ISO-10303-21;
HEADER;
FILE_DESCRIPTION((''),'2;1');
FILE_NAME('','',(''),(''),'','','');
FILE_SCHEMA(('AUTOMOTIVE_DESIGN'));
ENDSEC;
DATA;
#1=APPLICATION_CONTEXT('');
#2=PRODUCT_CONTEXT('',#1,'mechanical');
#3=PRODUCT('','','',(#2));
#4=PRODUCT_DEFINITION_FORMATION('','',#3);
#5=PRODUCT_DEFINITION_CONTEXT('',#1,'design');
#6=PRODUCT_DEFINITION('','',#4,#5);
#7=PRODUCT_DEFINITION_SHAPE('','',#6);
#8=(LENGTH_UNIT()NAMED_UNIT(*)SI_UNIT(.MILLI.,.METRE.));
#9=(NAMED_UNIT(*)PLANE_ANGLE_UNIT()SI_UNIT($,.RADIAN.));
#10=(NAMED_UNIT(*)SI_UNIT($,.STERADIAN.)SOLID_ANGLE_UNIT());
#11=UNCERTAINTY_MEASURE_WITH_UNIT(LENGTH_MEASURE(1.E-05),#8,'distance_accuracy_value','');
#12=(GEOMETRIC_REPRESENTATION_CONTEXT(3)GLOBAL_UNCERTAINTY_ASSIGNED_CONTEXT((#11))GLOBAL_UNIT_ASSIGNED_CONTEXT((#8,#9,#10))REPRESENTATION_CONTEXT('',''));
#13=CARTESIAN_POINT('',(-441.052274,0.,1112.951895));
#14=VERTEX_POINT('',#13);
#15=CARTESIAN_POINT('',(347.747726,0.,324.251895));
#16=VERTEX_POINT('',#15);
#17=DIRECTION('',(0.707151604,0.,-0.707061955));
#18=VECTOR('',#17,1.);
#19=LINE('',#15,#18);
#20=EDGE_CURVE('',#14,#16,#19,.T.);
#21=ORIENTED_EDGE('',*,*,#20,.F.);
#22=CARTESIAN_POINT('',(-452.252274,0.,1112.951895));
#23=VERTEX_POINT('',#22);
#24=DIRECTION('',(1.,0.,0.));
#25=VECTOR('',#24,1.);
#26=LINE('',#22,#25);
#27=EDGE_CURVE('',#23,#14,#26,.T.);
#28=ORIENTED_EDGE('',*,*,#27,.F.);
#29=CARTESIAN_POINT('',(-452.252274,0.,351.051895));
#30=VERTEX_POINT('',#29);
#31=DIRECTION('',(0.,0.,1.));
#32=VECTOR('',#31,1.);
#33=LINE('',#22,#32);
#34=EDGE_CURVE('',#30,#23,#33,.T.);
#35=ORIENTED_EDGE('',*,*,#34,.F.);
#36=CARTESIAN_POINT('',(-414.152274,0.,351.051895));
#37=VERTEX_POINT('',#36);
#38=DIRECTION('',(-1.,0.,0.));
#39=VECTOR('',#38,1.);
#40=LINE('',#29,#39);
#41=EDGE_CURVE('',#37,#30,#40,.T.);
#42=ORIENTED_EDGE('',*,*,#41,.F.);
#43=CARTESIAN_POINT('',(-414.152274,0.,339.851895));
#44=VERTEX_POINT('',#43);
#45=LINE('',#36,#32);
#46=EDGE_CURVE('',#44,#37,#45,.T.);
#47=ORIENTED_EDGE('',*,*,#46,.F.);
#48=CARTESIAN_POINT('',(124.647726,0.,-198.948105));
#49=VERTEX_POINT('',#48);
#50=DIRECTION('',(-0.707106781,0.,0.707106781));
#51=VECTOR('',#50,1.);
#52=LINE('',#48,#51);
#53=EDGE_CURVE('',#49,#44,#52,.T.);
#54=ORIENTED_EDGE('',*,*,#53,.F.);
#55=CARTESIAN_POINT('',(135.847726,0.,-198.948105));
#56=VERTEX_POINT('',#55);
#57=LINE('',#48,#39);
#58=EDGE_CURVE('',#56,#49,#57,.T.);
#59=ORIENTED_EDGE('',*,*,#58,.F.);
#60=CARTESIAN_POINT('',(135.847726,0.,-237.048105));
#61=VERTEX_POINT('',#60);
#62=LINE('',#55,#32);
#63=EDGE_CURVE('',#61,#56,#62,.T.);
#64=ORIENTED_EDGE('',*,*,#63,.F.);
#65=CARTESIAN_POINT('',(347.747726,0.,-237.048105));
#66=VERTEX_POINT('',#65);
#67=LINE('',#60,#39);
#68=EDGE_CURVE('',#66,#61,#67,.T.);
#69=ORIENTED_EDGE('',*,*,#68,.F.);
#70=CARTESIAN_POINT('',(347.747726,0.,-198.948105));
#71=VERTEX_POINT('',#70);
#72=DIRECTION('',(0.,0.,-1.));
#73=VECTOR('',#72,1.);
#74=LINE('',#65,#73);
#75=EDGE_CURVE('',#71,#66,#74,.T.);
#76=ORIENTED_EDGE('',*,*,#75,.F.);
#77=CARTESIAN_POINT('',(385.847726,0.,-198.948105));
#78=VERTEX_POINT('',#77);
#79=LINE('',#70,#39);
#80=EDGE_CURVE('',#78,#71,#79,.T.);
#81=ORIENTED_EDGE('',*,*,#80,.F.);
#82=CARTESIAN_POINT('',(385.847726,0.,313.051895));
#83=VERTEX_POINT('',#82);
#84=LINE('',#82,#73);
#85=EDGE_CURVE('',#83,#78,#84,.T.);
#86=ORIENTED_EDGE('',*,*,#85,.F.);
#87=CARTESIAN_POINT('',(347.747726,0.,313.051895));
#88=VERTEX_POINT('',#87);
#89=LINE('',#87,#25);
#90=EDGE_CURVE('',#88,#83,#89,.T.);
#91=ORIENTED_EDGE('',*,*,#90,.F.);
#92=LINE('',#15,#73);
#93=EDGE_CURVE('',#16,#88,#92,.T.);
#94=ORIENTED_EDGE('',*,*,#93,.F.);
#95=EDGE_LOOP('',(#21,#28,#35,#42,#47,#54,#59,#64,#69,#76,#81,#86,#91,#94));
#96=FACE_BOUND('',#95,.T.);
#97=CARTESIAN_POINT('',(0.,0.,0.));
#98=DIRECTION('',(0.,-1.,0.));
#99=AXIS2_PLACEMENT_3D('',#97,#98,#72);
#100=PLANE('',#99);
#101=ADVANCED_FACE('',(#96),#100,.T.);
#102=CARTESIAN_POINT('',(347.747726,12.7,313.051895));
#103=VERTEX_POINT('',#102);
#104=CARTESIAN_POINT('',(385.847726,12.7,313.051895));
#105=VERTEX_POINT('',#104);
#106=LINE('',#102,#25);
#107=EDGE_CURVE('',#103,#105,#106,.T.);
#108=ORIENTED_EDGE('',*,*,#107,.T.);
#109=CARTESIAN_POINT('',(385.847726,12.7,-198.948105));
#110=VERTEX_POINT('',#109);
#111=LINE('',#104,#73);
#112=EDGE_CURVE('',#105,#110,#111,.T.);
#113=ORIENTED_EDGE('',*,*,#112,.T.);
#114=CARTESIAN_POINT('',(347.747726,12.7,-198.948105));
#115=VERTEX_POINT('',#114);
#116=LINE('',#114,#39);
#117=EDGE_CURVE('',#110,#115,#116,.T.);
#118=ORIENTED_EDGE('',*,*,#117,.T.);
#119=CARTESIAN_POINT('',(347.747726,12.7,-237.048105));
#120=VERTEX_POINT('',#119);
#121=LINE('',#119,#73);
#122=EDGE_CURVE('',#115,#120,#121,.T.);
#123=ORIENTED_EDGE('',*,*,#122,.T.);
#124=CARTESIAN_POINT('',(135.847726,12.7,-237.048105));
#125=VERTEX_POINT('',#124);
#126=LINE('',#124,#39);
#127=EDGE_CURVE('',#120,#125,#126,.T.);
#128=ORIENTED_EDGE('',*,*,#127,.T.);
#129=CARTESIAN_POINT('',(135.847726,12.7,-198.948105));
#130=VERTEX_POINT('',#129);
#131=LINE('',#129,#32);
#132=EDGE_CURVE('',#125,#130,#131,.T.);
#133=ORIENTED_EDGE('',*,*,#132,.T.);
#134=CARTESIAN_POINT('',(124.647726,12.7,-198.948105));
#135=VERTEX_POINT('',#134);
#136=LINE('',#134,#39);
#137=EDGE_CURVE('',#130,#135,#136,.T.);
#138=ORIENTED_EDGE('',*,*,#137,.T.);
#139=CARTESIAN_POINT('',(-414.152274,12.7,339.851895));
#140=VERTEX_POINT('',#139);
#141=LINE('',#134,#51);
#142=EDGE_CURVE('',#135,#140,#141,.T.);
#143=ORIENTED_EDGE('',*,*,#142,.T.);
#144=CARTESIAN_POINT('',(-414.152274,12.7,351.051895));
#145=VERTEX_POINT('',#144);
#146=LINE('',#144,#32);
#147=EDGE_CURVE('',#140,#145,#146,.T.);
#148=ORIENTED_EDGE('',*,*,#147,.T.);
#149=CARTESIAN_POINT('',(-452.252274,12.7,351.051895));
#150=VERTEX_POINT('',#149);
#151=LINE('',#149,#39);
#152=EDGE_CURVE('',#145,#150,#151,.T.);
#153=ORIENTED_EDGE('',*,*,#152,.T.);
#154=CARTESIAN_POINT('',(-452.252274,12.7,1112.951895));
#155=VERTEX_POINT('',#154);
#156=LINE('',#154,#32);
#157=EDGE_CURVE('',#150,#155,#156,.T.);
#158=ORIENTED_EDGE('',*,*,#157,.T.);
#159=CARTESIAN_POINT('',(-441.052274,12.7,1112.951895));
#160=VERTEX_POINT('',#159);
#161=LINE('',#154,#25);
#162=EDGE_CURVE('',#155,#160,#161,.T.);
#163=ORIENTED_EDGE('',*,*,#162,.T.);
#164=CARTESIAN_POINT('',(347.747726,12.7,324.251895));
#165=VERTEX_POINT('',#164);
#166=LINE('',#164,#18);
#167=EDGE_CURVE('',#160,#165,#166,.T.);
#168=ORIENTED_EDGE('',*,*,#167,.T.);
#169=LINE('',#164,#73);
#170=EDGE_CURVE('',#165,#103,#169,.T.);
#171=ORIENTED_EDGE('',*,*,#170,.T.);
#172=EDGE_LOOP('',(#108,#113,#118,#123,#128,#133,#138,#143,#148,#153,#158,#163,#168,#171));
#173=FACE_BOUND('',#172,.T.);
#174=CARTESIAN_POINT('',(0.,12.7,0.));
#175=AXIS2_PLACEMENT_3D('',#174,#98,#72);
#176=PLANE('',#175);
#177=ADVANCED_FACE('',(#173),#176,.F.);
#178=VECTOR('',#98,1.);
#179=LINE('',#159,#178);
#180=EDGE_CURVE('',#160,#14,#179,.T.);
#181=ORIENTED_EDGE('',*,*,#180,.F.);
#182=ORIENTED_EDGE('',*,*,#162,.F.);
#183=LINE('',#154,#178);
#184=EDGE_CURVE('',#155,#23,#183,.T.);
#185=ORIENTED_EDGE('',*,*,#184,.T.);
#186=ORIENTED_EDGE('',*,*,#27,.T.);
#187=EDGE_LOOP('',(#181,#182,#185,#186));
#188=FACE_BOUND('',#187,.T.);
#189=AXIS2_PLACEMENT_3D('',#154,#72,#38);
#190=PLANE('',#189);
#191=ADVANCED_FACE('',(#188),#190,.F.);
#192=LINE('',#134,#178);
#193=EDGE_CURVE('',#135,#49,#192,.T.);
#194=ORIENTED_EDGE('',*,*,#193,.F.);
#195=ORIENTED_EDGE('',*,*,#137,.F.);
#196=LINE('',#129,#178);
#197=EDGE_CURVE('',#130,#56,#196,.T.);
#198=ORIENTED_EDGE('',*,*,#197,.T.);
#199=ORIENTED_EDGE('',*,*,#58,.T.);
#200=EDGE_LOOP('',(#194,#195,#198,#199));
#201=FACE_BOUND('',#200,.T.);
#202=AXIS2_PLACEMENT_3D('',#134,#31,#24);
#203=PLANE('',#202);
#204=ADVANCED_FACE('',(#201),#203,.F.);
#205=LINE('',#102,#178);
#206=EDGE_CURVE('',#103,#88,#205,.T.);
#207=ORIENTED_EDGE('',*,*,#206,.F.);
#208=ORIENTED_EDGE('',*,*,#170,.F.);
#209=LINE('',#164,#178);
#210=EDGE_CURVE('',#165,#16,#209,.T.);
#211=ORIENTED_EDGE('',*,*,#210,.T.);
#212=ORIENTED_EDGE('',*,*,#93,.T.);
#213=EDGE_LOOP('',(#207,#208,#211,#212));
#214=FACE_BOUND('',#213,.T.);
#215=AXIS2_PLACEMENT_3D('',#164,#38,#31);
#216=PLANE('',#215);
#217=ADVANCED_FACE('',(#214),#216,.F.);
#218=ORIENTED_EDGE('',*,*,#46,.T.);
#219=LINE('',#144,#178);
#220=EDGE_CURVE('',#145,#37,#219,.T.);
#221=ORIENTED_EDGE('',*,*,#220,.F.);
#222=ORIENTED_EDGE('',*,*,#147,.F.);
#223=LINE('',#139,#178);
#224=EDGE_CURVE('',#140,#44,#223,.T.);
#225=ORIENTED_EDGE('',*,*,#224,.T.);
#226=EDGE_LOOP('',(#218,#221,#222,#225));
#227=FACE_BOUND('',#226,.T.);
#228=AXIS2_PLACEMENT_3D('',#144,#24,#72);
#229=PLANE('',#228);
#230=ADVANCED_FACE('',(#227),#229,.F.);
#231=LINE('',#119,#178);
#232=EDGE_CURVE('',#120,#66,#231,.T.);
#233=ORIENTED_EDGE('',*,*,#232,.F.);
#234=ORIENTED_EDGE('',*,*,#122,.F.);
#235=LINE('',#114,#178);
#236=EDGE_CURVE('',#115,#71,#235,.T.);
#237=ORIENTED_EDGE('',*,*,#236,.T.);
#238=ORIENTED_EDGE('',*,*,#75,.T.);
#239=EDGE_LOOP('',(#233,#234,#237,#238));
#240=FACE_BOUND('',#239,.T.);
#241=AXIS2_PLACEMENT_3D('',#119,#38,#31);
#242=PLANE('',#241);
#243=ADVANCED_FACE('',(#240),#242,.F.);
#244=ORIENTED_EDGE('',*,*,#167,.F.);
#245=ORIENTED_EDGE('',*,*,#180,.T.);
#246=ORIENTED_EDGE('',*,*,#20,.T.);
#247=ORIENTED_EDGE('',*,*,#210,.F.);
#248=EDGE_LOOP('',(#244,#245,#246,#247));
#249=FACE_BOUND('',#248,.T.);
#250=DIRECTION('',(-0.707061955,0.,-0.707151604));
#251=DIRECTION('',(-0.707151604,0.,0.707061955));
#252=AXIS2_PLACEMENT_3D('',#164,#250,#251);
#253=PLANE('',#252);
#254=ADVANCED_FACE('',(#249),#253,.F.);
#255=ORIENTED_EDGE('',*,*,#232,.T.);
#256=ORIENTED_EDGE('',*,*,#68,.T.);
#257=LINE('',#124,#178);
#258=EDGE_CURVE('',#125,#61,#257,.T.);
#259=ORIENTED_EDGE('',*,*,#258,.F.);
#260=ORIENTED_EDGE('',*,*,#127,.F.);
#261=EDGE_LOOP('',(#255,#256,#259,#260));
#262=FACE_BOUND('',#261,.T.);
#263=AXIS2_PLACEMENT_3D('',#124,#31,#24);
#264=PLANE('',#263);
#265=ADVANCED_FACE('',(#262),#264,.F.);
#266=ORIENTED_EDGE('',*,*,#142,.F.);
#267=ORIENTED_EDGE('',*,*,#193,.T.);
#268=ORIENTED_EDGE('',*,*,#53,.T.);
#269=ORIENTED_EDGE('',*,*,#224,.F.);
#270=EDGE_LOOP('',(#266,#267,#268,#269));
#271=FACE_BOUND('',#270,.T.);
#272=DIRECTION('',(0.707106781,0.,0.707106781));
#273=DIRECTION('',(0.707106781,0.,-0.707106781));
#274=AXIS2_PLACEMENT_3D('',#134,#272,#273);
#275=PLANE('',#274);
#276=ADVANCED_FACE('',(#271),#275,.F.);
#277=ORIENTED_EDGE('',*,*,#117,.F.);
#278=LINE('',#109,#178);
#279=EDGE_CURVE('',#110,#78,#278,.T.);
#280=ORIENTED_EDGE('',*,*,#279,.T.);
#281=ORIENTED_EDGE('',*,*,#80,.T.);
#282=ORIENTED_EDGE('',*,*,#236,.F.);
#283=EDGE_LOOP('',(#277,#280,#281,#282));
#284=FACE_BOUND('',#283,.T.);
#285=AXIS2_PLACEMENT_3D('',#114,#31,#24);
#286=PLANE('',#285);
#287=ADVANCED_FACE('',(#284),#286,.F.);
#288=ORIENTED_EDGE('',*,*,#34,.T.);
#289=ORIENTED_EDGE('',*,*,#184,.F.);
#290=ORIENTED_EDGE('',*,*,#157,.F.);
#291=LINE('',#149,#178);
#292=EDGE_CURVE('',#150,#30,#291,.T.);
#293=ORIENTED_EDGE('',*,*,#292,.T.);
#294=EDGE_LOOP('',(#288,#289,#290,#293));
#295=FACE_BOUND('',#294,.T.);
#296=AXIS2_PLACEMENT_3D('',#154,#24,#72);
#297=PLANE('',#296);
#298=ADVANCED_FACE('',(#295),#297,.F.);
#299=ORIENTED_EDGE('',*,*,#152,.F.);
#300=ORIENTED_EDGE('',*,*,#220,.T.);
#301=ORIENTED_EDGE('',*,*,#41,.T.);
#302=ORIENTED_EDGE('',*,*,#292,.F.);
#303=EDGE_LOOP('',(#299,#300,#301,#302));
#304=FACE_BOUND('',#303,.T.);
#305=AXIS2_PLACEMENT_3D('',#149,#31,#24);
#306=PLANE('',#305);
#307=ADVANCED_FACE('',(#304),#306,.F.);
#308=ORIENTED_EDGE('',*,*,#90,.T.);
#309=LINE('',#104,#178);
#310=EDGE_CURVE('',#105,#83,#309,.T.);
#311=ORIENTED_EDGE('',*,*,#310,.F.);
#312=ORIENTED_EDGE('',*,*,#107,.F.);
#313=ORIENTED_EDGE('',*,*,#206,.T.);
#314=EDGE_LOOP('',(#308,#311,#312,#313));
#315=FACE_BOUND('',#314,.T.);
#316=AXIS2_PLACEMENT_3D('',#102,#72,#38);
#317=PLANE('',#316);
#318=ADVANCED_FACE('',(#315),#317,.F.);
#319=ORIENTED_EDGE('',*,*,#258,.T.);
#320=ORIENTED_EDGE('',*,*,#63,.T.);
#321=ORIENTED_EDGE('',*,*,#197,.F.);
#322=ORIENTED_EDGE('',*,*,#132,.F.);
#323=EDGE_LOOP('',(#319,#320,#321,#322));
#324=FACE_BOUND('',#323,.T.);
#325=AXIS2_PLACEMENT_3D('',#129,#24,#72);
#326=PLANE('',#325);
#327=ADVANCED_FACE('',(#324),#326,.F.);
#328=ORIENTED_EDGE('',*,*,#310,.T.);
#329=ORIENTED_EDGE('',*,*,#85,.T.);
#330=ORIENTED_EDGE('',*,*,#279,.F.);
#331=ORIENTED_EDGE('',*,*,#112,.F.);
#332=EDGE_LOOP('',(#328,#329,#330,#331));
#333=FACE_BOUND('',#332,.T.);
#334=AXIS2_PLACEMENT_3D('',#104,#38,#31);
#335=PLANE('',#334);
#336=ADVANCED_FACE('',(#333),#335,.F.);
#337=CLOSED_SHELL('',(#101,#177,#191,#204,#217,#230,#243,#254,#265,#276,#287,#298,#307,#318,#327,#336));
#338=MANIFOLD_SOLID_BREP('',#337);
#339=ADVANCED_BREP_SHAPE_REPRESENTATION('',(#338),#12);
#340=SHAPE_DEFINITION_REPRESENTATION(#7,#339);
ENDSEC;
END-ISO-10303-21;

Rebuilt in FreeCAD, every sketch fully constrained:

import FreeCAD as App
import Part
import Sketcher
from FreeCAD import Vector
Q = App.Units.Quantity

doc = App.newDocument("Part")
body = doc.addObject("PartDesign::Body", "Body")

# Sketch on XZ plane
sketch1 = body.newObject("Sketcher::SketchObject", "Sketch")
sketch1.AttachmentSupport = (doc.getObject("XZ_Plane"), [""])
sketch1.MapMode = "FlatFace"
sketch1.addGeometry(Part.LineSegment(Vector(125, -199, 0), Vector(-414, 340, 0)), False)
sketch1.addGeometry(Part.LineSegment(Vector(-414, 340, 0), Vector(-414, 351, 0)), False)
sketch1.addGeometry(Part.LineSegment(Vector(-414, 351, 0), Vector(-452, 351, 0)), False)
sketch1.addGeometry(Part.LineSegment(Vector(-452, 351, 0), Vector(-452, 1113, 0)), False)
sketch1.addGeometry(Part.LineSegment(Vector(-452, 1113, 0), Vector(-441, 1113, 0)), False)
sketch1.addGeometry(Part.LineSegment(Vector(-441, 1113, 0), Vector(348, 324, 0)), False)
sketch1.addGeometry(Part.LineSegment(Vector(348, 324, 0), Vector(348, 313, 0)), False)
sketch1.addGeometry(Part.LineSegment(Vector(348, 313, 0), Vector(386, 313, 0)), False)
sketch1.addGeometry(Part.LineSegment(Vector(386, 313, 0), Vector(386, -199, 0)), False)
sketch1.addGeometry(Part.LineSegment(Vector(386, -199, 0), Vector(348, -199, 0)), False)
sketch1.addGeometry(Part.LineSegment(Vector(348, -199, 0), Vector(348, -237, 0)), False)
sketch1.addGeometry(Part.LineSegment(Vector(348, -237, 0), Vector(136, -237, 0)), False)
sketch1.addGeometry(Part.LineSegment(Vector(136, -237, 0), Vector(136, -199, 0)), False)
sketch1.addGeometry(Part.LineSegment(Vector(136, -199, 0), Vector(125, -199, 0)), False)
sketch1.addConstraint(Sketcher.Constraint("Coincident", 0, 2, 1, 1))
sketch1.addConstraint(Sketcher.Constraint("Coincident", 1, 2, 2, 1))
sketch1.addConstraint(Sketcher.Constraint("Coincident", 2, 2, 3, 1))
sketch1.addConstraint(Sketcher.Constraint("Coincident", 3, 2, 4, 1))
sketch1.addConstraint(Sketcher.Constraint("Coincident", 4, 2, 5, 1))
sketch1.addConstraint(Sketcher.Constraint("Coincident", 5, 2, 6, 1))
sketch1.addConstraint(Sketcher.Constraint("Coincident", 6, 2, 7, 1))
sketch1.addConstraint(Sketcher.Constraint("Coincident", 7, 2, 8, 1))
sketch1.addConstraint(Sketcher.Constraint("Coincident", 8, 2, 9, 1))
sketch1.addConstraint(Sketcher.Constraint("Coincident", 9, 2, 10, 1))
sketch1.addConstraint(Sketcher.Constraint("Coincident", 10, 2, 11, 1))
sketch1.addConstraint(Sketcher.Constraint("Coincident", 11, 2, 12, 1))
sketch1.addConstraint(Sketcher.Constraint("Coincident", 12, 2, 13, 1))
sketch1.addConstraint(Sketcher.Constraint("Coincident", 13, 2, 0, 1))
sketch1.addConstraint(Sketcher.Constraint("Vertical", 1))
sketch1.addConstraint(Sketcher.Constraint("Horizontal", 2))
sketch1.addConstraint(Sketcher.Constraint("Vertical", 3))
sketch1.addConstraint(Sketcher.Constraint("Horizontal", 4))
sketch1.addConstraint(Sketcher.Constraint("Vertical", 6))
sketch1.addConstraint(Sketcher.Constraint("Horizontal", 7))
sketch1.addConstraint(Sketcher.Constraint("Vertical", 8))
sketch1.addConstraint(Sketcher.Constraint("Horizontal", 9))
sketch1.addConstraint(Sketcher.Constraint("Vertical", 10))
sketch1.addConstraint(Sketcher.Constraint("Horizontal", 11))
sketch1.addConstraint(Sketcher.Constraint("Vertical", 12))
sketch1.addConstraint(Sketcher.Constraint("Horizontal", 13))
sketch1.addConstraint(Sketcher.Constraint("Horizontal", 9, 2, 12, 2))
sketch1.addConstraint(Sketcher.Constraint("Vertical", 6, 2, 9, 2))
sketch1.addConstraint(Sketcher.Constraint("Equal", 2, 7))
sketch1.addConstraint(Sketcher.Constraint("Equal", 4, 13))
sketch1.addConstraint(Sketcher.Constraint("Equal", 13, 1))
sketch1.addConstraint(Sketcher.Constraint("Equal", 1, 6))
sketch1.addConstraint(Sketcher.Constraint("Equal", 9, 10))
sketch1.addConstraint(Sketcher.Constraint("DistanceY", 8, 2, 8, 1, 512.0))
sketch1.addConstraint(Sketcher.Constraint("Angle", 0, Q("135 deg")))
sketch1.addConstraint(Sketcher.Constraint("DistanceX", 2, 2, 2, 1, 38.1))
sketch1.addConstraint(Sketcher.Constraint("DistanceX", 4, 1, 4, 2, 11.2))
sketch1.addConstraint(Sketcher.Constraint("DistanceX", 11, 2, 11, 1, 211.9))
sketch1.addConstraint(Sketcher.Constraint("DistanceY", 3, 1, 3, 2, 761.9))
sketch1.addConstraint(Sketcher.Constraint("DistanceX", 2, 2, 5, 2, 800.0))
sketch1.addConstraint(Sketcher.Constraint("DistanceX", 0, 2, -1, 1, 414.152274))
sketch1.addConstraint(Sketcher.Constraint("DistanceY", -1, 1, 0, 2, 339.851895))
pad1 = body.newObject("PartDesign::Pad", "Pad")
pad1.Profile = sketch1
pad1.Length = 12.7
pad1.Reversed = True

doc.recompute()
